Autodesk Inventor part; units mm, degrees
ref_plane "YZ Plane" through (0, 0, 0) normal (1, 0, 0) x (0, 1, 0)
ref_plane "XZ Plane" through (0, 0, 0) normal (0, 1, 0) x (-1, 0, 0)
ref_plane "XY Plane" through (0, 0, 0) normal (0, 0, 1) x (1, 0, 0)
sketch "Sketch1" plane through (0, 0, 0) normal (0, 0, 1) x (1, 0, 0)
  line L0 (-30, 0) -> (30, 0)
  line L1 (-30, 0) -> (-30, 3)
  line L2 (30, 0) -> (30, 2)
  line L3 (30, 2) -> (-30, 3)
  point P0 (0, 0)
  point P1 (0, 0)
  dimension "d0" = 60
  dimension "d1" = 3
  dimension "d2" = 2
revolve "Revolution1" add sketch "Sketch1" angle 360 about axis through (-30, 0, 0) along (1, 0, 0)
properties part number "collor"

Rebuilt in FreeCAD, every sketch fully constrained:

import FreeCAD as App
import Part
import Sketcher

doc = App.newDocument("Part")
body = doc.addObject("PartDesign::Body", "Body")

# Sketch on XY plane
sketch1 = doc.addObject("Sketcher::SketchObject", "Sketch")
body.addObject(sketch1)
sketch1.AttachmentSupport = (doc.XY_Plane, [""])
sketch1.MapMode = "FlatFace"
sketch1.addGeometry(Part.LineSegment(App.Vector(-30, 3, 0), App.Vector(-30, 0, 0)), False)
sketch1.addGeometry(Part.LineSegment(App.Vector(-30, 0, 0), App.Vector(30, 0, 0)), False)
sketch1.addGeometry(Part.LineSegment(App.Vector(30, 0, 0), App.Vector(30, 2, 0)), False)
sketch1.addGeometry(Part.LineSegment(App.Vector(30, 2, 0), App.Vector(-30, 3, 0)), False)
sketch1.addConstraint(Sketcher.Constraint("Coincident", 0, 2, 1, 1))
sketch1.addConstraint(Sketcher.Constraint("Coincident", 1, 2, 2, 1))
sketch1.addConstraint(Sketcher.Constraint("Coincident", 2, 2, 3, 1))
sketch1.addConstraint(Sketcher.Constraint("Coincident", 3, 2, 0, 1))
sketch1.addConstraint(Sketcher.Constraint("Vertical", 0))
sketch1.addConstraint(Sketcher.Constraint("Horizontal", 1))
sketch1.addConstraint(Sketcher.Constraint("Vertical", 2))
sketch1.addConstraint(Sketcher.Constraint("Symmetric", 0, 2, 1, 2, -1, 1))
sketch1.addConstraint(Sketcher.Constraint("DistanceX", 1, 1, 1, 2, 60.0))
sketch1.addConstraint(Sketcher.Constraint("DistanceY", 0, 2, 0, 1, 3.0))
sketch1.addConstraint(Sketcher.Constraint("DistanceY", 2, 1, 2, 2, 2.0))
revolution = doc.addObject("PartDesign::Revolution", "Revolution")
body.addObject(revolution)
revolution.Profile = sketch1
revolution.ReferenceAxis = (sketch1, ["H_Axis"])
revolution.Angle = 360

doc.recompute()
